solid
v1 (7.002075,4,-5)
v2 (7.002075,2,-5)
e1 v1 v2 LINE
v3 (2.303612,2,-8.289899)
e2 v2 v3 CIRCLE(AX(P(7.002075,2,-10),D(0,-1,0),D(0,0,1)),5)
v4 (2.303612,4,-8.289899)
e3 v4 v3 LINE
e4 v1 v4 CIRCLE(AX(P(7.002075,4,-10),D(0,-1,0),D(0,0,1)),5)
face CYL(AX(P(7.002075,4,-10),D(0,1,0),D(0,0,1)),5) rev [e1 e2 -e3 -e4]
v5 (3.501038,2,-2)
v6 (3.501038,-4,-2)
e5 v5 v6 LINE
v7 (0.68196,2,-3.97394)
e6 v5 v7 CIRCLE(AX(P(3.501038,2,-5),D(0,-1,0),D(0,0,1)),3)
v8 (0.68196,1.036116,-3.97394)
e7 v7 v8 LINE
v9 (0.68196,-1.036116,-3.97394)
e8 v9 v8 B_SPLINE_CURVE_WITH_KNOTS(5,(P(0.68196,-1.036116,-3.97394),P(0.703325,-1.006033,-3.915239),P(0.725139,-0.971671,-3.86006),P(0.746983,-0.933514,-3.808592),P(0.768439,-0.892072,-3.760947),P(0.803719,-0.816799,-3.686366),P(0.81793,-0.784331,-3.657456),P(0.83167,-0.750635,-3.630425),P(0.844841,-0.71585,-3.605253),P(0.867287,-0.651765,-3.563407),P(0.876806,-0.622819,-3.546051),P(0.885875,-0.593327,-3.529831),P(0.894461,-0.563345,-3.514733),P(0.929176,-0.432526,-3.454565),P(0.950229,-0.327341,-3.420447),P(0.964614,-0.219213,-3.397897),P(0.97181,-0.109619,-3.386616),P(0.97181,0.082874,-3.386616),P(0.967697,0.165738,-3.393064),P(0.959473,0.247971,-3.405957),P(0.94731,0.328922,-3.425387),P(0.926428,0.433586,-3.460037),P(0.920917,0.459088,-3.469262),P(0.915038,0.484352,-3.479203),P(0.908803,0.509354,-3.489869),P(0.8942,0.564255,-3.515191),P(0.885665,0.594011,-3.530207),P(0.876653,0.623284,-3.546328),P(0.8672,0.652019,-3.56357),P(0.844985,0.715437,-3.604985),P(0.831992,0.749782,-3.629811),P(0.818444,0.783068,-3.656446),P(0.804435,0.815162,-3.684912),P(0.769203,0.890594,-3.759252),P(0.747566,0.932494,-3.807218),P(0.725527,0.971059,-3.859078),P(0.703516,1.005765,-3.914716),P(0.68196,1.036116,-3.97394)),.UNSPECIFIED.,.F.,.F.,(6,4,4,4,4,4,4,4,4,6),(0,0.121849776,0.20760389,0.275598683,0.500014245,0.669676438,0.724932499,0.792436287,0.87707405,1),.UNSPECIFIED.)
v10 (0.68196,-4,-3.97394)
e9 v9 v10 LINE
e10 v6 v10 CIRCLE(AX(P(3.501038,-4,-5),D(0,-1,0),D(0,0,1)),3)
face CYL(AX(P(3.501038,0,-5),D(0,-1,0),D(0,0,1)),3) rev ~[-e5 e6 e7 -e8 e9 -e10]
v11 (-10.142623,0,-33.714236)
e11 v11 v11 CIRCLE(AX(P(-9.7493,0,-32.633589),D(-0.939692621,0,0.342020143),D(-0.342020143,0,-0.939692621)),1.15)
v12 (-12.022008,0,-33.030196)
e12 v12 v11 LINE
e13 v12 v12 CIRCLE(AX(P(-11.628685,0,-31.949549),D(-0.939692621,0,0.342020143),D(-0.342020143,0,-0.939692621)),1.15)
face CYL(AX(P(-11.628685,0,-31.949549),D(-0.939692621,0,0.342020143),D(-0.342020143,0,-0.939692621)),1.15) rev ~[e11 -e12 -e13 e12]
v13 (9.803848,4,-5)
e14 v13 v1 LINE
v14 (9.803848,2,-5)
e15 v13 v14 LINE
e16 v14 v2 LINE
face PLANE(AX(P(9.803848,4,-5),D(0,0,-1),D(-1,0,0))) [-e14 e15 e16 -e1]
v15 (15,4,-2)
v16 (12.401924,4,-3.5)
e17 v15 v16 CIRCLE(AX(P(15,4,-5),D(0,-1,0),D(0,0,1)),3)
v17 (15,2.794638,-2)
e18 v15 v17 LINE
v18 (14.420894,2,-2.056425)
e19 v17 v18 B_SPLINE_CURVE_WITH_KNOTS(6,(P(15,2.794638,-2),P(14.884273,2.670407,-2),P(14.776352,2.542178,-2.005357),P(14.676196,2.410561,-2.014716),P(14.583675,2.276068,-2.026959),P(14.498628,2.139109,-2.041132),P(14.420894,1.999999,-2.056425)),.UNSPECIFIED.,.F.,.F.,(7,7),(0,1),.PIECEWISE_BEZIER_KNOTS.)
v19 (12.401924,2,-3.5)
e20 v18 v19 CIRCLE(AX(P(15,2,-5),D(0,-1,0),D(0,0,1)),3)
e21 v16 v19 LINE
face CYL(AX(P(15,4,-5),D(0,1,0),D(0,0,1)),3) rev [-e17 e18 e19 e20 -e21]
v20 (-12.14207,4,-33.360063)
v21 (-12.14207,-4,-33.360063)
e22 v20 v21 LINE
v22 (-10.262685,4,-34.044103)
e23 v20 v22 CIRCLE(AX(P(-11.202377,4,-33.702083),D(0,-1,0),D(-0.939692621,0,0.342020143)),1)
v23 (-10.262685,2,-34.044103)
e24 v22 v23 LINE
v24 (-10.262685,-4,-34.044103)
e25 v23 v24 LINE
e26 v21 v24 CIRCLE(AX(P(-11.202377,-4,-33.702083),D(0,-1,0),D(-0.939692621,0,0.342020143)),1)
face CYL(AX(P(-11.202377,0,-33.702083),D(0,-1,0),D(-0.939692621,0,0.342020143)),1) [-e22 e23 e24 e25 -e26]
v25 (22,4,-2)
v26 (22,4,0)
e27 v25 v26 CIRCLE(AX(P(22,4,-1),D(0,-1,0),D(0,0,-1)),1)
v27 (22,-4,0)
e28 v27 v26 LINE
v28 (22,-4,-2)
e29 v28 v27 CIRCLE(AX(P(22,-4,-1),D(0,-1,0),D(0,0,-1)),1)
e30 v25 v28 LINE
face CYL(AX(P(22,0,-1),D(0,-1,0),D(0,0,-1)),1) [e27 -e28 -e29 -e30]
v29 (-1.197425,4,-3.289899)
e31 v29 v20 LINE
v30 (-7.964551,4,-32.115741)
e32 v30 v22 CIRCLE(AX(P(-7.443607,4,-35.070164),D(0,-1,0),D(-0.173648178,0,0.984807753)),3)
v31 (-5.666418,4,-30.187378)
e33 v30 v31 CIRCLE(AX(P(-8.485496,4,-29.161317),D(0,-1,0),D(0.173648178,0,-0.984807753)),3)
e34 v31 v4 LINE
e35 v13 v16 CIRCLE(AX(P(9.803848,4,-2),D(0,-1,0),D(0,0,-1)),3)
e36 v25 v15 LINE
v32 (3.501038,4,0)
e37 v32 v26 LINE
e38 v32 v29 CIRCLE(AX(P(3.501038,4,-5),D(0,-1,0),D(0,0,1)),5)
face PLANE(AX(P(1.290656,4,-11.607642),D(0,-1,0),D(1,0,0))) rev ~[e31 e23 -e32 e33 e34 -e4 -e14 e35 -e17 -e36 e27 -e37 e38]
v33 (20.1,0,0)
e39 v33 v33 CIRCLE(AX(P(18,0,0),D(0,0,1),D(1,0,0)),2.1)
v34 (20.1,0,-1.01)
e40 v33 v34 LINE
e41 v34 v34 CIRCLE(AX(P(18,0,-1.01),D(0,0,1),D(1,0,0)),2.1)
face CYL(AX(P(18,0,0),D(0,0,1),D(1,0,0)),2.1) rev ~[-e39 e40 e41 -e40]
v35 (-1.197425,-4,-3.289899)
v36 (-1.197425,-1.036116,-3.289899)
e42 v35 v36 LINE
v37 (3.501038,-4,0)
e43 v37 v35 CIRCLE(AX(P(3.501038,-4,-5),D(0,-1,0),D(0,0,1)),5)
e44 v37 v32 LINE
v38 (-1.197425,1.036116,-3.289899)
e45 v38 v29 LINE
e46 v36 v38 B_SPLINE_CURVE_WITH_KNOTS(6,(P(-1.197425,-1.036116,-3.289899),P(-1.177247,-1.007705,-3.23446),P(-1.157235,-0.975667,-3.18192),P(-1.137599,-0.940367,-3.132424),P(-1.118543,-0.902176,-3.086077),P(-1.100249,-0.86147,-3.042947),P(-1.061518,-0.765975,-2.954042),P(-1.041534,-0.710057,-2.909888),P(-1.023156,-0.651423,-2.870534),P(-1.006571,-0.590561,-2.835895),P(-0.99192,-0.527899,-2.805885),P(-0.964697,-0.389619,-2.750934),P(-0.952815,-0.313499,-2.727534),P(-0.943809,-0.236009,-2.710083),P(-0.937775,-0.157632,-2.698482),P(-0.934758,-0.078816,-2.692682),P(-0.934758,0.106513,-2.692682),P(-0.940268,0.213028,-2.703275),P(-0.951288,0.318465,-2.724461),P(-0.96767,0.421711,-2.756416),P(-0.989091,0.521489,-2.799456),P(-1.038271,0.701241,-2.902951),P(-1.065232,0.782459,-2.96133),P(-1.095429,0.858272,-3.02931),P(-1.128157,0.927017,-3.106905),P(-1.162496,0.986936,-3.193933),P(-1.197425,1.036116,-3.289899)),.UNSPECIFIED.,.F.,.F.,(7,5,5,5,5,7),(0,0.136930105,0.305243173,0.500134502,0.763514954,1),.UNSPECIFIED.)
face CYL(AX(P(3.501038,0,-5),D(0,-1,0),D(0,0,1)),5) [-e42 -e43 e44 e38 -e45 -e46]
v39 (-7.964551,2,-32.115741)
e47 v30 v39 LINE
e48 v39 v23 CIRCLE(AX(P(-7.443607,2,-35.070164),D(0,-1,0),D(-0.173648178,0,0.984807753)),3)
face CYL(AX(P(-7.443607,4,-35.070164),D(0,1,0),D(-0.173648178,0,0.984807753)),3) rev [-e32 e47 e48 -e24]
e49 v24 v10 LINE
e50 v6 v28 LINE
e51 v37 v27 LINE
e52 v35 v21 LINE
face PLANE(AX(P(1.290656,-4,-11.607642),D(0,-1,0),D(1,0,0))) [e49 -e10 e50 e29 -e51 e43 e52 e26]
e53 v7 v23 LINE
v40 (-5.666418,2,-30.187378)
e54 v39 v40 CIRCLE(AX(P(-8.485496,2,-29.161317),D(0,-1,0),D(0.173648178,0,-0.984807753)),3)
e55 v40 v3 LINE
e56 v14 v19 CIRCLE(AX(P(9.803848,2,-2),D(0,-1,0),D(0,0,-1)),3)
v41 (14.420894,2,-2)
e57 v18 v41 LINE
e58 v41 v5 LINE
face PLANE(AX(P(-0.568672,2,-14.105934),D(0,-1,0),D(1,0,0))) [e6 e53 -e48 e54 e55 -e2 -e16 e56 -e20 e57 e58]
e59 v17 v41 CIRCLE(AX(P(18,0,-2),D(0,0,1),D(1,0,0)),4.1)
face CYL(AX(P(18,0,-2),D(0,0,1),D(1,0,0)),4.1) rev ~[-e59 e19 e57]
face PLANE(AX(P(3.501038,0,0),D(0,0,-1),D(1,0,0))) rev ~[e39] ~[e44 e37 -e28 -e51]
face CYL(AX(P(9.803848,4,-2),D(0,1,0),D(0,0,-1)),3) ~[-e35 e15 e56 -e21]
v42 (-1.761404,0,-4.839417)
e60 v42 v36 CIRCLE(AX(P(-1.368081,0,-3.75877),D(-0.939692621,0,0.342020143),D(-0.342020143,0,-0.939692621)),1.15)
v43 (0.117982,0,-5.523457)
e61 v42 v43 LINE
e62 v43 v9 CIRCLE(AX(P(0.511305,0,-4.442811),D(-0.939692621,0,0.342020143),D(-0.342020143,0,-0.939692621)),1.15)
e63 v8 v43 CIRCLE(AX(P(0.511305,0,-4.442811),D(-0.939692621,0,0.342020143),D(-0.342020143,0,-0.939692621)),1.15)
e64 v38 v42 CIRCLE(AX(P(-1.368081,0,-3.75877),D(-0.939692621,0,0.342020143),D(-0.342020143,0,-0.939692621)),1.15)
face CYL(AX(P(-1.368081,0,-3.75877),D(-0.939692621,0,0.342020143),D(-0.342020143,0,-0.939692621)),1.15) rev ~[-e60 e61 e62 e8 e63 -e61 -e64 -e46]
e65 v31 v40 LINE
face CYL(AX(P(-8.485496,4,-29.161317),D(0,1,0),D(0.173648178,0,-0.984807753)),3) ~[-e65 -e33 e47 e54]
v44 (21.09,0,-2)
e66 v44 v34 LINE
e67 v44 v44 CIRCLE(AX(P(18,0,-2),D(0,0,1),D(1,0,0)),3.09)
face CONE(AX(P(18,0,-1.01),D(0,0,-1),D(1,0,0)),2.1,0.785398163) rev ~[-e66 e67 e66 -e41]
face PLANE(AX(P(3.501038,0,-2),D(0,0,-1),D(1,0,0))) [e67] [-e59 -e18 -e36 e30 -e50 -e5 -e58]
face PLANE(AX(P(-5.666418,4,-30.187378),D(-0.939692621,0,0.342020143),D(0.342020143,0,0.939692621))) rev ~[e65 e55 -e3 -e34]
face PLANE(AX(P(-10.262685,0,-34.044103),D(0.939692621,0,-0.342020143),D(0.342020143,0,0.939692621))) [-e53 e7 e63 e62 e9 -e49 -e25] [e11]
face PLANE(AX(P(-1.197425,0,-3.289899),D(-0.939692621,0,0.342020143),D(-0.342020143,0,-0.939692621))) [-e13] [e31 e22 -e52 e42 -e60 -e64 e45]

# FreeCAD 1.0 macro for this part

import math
import FreeCAD as App
import Part
import Sketcher

V = App.Vector
Q = App.Units.Quantity


def edges_at(feature, points):
    """Names of the edges that pass closest to the given points."""
    edges = feature.Shape.Edges
    near = lambda p: min(range(len(edges)), key=lambda i: edges[i].distToShape(Part.Vertex(*p))[0])
    return sorted({f"Edge{near(p) + 1}" for p in points})

doc = App.newDocument("Part")
params = doc.addObject("Spreadsheet::Sheet", "Params")
for row, (alias, value) in enumerate([
    ("sketch1_radius", "1 mm"),
    ("sketch1_radius2", "3 mm"),
    ("sketch1_length", "32 mm"),
    ("pad1_length", "8 mm"),
    ("sketch2_radius", "3 mm"),
    ("sketch2_radius2", "5 mm"),
    ("sketch2_length", "32 mm"),
    ("sketch2_length2", "2 mm"),
    ("pad2_length", "2 mm"),
    ("sketch3_diameter", "8.2 mm"),
    ("sketch4_diameter", "4.2 mm"),
    ("pocket2_length", "5 mm"),
    ("sketch5_diameter", "2.3 mm"),
    ("chamfer_size", "0.99 mm"),
], start=1):
    params.set(f"A{row}", alias)
    params.set(f"B{row}", "=" + value)
    params.setAlias(f"B{row}", alias)

body = doc.addObject("PartDesign::Body", "Body")

# Sketch on XZ plane
sketch1 = doc.addObject("Sketcher::SketchObject", "Sketch")
body.addObject(sketch1)
sketch1.AttachmentSupport = (doc.XZ_Plane, [""])
sketch1.MapMode = "FlatFace"
sketch1.addGeometry(Part.LineSegment(V(-1.2, -3.3, 0), V(-12.1, -33.4, 0)), False)
sketch1.addGeometry(Part.ArcOfCircle(Part.Circle(V(-11.2, -33.7, 0), V(0, 0, 1), 1), math.radians(160), math.radians(340)), False)
sketch1.addGeometry(Part.LineSegment(V(-10.3, -34, 0), V(0.7, -4, 0)), False)
sketch1.addGeometry(Part.ArcOfCircle(Part.Circle(V(3.5, -5, 0), V(0, 0, 1), 3), math.radians(90), math.radians(160)), False)
sketch1.addGeometry(Part.LineSegment(V(3.5, -2, 0), V(22, -2, 0)), False)
sketch1.addGeometry(Part.ArcOfCircle(Part.Circle(V(22, -1, 0), V(0, 0, 1), 1), math.radians(-90), math.radians(90)), False)
sketch1.addGeometry(Part.LineSegment(V(22, 0, 0), V(3.5, 0, 0)), False)
sketch1.addGeometry(Part.ArcOfCircle(Part.Circle(V(3.5, -5, 0), V(0, 0, 1), 5), math.radians(90), math.radians(160)), False)
sketch1.addConstraint(Sketcher.Constraint("Tangent", 0, 2, 1, 1))
sketch1.addConstraint(Sketcher.Constraint("Tangent", 1, 2, 2, 1))
sketch1.addConstraint(Sketcher.Constraint("Tangent", 2, 2, 3, 2))
sketch1.addConstraint(Sketcher.Constraint("Tangent", 3, 1, 4, 1))
sketch1.addConstraint(Sketcher.Constraint("Tangent", 4, 2, 5, 1))
sketch1.addConstraint(Sketcher.Constraint("Tangent", 5, 2, 6, 1))
sketch1.addConstraint(Sketcher.Constraint("Tangent", 6, 2, 7, 1))
sketch1.addConstraint(Sketcher.Constraint("Tangent", 7, 2, 0, 1))
sketch1.addConstraint(Sketcher.Constraint("Horizontal", 4))
sketch1.addConstraint(Sketcher.Constraint("Horizontal", 6))
sketch1.addConstraint(Sketcher.Constraint("Coincident", 7, 3, 3, 3))
sketch1.addConstraint(Sketcher.Constraint("Equal", 1, 5))
sketch1.addConstraint(Sketcher.Constraint("PointOnObject", 5, 2, -1))
sketch1.addConstraint(Sketcher.Constraint("Radius", 1, 1.0))
sketch1.addConstraint(Sketcher.Constraint("Radius", 3, 3.0))
sketch1.addConstraint(Sketcher.Constraint("Angle", 0, Q("-110 deg")))
sketch1.addConstraint(Sketcher.Constraint("Distance", 0, 32.0))
sketch1.addConstraint(Sketcher.Constraint("DistanceX", -1, 1, 5, 3, 22.0))
sketch1.addConstraint(Sketcher.Constraint("DistanceX", 4, 1, 4, 2, 18.498962))
sketch1.setExpression("Constraints[13]", "Params.sketch1_radius")
sketch1.setExpression("Constraints[14]", "Params.sketch1_radius2")
sketch1.setExpression("Constraints[16]", "Params.sketch1_length")
pad1 = doc.addObject("PartDesign::Pad", "Pad")
body.addObject(pad1)
pad1.Profile = sketch1
pad1.setExpression("Length", "Params.pad1_length")
pad1.Midplane = True

# Sketch on XZ plane
sketch2 = doc.addObject("Sketcher::SketchObject", "Sketch001")
body.addObject(sketch2)
sketch2.AttachmentSupport = (doc.XZ_Plane, [""])
sketch2.MapMode = "FlatFace"
sketch2.AttachmentOffset = App.Placement(V(0, 0, -4), App.Rotation())
sketch2.addGeometry(Part.LineSegment(V(-1.2, -3.3, 0), V(-12.1, -33.4, 0)), False)
sketch2.addGeometry(Part.LineSegment(V(-12.1, -33.4, 0), V(-10.3, -34, 0)), False)
sketch2.addGeometry(Part.ArcOfCircle(Part.Circle(V(-7.4, -35.1, 0), V(0, 0, 1), 3), math.radians(100), math.radians(160)), False)
sketch2.addGeometry(Part.ArcOfCircle(Part.Circle(V(-8.5, -29.2, 0), V(0, 0, 1), 3), math.radians(-80), math.radians(-20)), False)
sketch2.addGeometry(Part.LineSegment(V(-5.7, -30.2, 0), V(2.3, -8.3, 0)), False)
sketch2.addGeometry(Part.ArcOfCircle(Part.Circle(V(7, -10, 0), V(0, 0, 1), 5), math.radians(90), math.radians(160)), False)
sketch2.addGeometry(Part.LineSegment(V(7, -5, 0), V(9.8, -5, 0)), False)
sketch2.addGeometry(Part.ArcOfCircle(Part.Circle(V(9.8, -2, 0), V(0, 0, 1), 3), math.radians(-90), math.radians(-30)), False)
sketch2.addGeometry(Part.ArcOfCircle(Part.Circle(V(15, -5, 0), V(0, 0, 1), 3), math.radians(90), math.radians(150)), False)
sketch2.addGeometry(Part.LineSegment(V(15, -2, 0), V(15, 0, 0)), False)
sketch2.addGeometry(Part.LineSegment(V(15, 0, 0), V(3.5, 0, 0)), False)
sketch2.addGeometry(Part.ArcOfCircle(Part.Circle(V(3.5, -5, 0), V(0, 0, 1), 5), math.radians(90), math.radians(160)), False)
sketch2.addConstraint(Sketcher.Constraint("Coincident", 0, 2, 1, 1))
sketch2.addConstraint(Sketcher.Constraint("Coincident", 1, 2, 2, 2))
sketch2.addConstraint(Sketcher.Constraint("Tangent", 2, 1, 3, 1))
sketch2.addConstraint(Sketcher.Constraint("Tangent", 3, 2, 4, 1))
sketch2.addConstraint(Sketcher.Constraint("Tangent", 4, 2, 5, 2))
sketch2.addConstraint(Sketcher.Constraint("Tangent", 5, 1, 6, 1))
sketch2.addConstraint(Sketcher.Constraint("Tangent", 6, 2, 7, 1))
sketch2.addConstraint(Sketcher.Constraint("Tangent", 7, 2, 8, 2))
sketch2.addConstraint(Sketcher.Constraint("Coincident", 8, 1, 9, 1))
sketch2.addConstraint(Sketcher.Constraint("Coincident", 9, 2, 10, 1))
sketch2.addConstraint(Sketcher.Constraint("Tangent", 10, 2, 11, 1))
sketch2.addConstraint(Sketcher.Constraint("Tangent", 11, 2, 0, 1))
sketch2.addConstraint(Sketcher.Constraint("Horizontal", 6))
sketch2.addConstraint(Sketcher.Constraint("Vertical", 9))
sketch2.addConstraint(Sketcher.Constraint("Horizontal", 10))
sketch2.addConstraint(Sketcher.Constraint("Equal", 2, 3))
sketch2.addConstraint(Sketcher.Constraint("Equal", 3, 7))
sketch2.addConstraint(Sketcher.Constraint("Equal", 7, 8))
sketch2.addConstraint(Sketcher.Constraint("Equal", 5, 11))
sketch2.addConstraint(Sketcher.Constraint("PointOnObject", 9, 2, -1))
sketch2.addConstraint(Sketcher.Constraint("Perpendicular", 0, 1))
sketch2.addConstraint(Sketcher.Constraint("Perpendicular", 1, 4))
sketch2.addConstraint(Sketcher.Constraint("Horizontal", 8, 3, 11, 3))
sketch2.addConstraint(Sketcher.Constraint("Horizontal", 11, 3, 5, 1))
sketch2.addConstraint(Sketcher.Constraint("Radius", 2, 3.0))
sketch2.addConstraint(Sketcher.Constraint("Radius", 5, 5.0))
sketch2.addConstraint(Sketcher.Constraint("Angle", 0, Q("-110 deg")))
sketch2.addConstraint(Sketcher.Constraint("Distance", 0, 32.0))
sketch2.addConstraint(Sketcher.Constraint("Distance", 1, 2.0))
sketch2.addConstraint(Sketcher.Constraint("DistanceX", -1, 1, 8, 3, 15.0))
sketch2.addConstraint(Sketcher.Constraint("DistanceX", -1, 1, 8, 1, 15.0))
sketch2.addConstraint(Sketcher.Constraint("DistanceY", 2, 3, 0, 2, 1.710101))
sketch2.addConstraint(Sketcher.Constraint("DistanceX", 11, 2, 5, 1, 8.199501))
sketch2.addConstraint(Sketcher.Constraint("DistanceX", 6, 1, 6, 2, 2.801772))
sketch2.setExpression("Constraints[24]", "Params.sketch2_radius")
sketch2.setExpression("Constraints[25]", "Params.sketch2_radius2")
sketch2.setExpression("Constraints[27]", "Params.sketch2_length")
sketch2.setExpression("Constraints[28]", "Params.sketch2_length2")
pad2 = doc.addObject("PartDesign::Pad", "Pad001")
body.addObject(pad2)
pad2.Profile = sketch2
pad2.setExpression("Length", "Params.pad2_length")

# Sketch on XY plane
sketch3 = doc.addObject("Sketcher::SketchObject", "Sketch002")
body.addObject(sketch3)
sketch3.AttachmentSupport = (doc.XY_Plane, [""])
sketch3.MapMode = "FlatFace"
sketch3.AttachmentOffset = App.Placement(V(0, 0, -2), App.Rotation())
sketch3.addGeometry(Part.Circle(V(18, 0, 0), V(0, 0, 1), 4.1), False)
sketch3.addConstraint(Sketcher.Constraint("PointOnObject", 0, 3, -1))
sketch3.addConstraint(Sketcher.Constraint("Diameter", 0, 8.2))
sketch3.addConstraint(Sketcher.Constraint("DistanceX", -1, 1, 0, 3, 18.0))
sketch3.setExpression("Constraints[1]", "Params.sketch3_diameter")
pocket1 = doc.addObject("PartDesign::Pocket", "Pocket")
body.addObject(pocket1)
pocket1.Profile = sketch3
pocket1.Type = "ThroughAll"

# Sketch on XY plane
sketch4 = doc.addObject("Sketcher::SketchObject", "Sketch003")
body.addObject(sketch4)
sketch4.AttachmentSupport = (doc.XY_Plane, [""])
sketch4.MapMode = "FlatFace"
sketch4.addGeometry(Part.Circle(V(18, 0, 0), V(0, 0, 1), 2.1), False)
sketch4.addConstraint(Sketcher.Constraint("PointOnObject", 0, 3, -1))
sketch4.addConstraint(Sketcher.Constraint("Diameter", 0, 4.2))
sketch4.addConstraint(Sketcher.Constraint("DistanceX", -1, 1, 0, 3, 18.0))
sketch4.setExpression("Constraints[1]", "Params.sketch4_diameter")
pocket2 = doc.addObject("PartDesign::Pocket", "Pocket001")
body.addObject(pocket2)
pocket2.Profile = sketch4
pocket2.setExpression("Length", "Params.pocket2_length")

# Sketch on an angled plane
sketch5 = doc.addObject("Sketcher::SketchObject", "Sketch004")
body.addObject(sketch5)
sketch5.Placement = App.Placement(V(0, 0, 0), App.Rotation(V(-0.342020143, 0, -0.939692621), V(0, -1, 0), V(-0.939692621, 0, 0.342020143), "ZXY"))
sketch5.addGeometry(Part.Circle(V(4, 0, 0), V(0, 0, 1), 1.1), False)
sketch5.addGeometry(Part.Circle(V(34, 0, 0), V(0, 0, 1), 1.1), False)
sketch5.addConstraint(Sketcher.Constraint("Equal", 0, 1))
sketch5.addConstraint(Sketcher.Constraint("PointOnObject", 0, 3, -1))
sketch5.addConstraint(Sketcher.Constraint("PointOnObject", 1, 3, -1))
sketch5.addConstraint(Sketcher.Constraint("Diameter", 0, 2.3))
sketch5.addConstraint(Sketcher.Constraint("DistanceX", -1, 1, 0, 3, 4.0))
sketch5.addConstraint(Sketcher.Constraint("DistanceX", -1, 1, 1, 3, 34.0))
sketch5.setExpression("Constraints[3]", "Params.sketch5_diameter")
pocket3 = doc.addObject("PartDesign::Pocket", "Pocket002")
body.addObject(pocket3)
pocket3.Profile = sketch5
pocket3.Type = "ThroughAll"
doc.recompute()

chamfer = doc.addObject("PartDesign::Chamfer", "Chamfer")
body.addObject(chamfer)
chamfer.Base = (pocket3, edges_at(pocket3, [(15.9, 0, -2)]))
chamfer.setExpression("Size", "Params.chamfer_size")

doc.recompute()
